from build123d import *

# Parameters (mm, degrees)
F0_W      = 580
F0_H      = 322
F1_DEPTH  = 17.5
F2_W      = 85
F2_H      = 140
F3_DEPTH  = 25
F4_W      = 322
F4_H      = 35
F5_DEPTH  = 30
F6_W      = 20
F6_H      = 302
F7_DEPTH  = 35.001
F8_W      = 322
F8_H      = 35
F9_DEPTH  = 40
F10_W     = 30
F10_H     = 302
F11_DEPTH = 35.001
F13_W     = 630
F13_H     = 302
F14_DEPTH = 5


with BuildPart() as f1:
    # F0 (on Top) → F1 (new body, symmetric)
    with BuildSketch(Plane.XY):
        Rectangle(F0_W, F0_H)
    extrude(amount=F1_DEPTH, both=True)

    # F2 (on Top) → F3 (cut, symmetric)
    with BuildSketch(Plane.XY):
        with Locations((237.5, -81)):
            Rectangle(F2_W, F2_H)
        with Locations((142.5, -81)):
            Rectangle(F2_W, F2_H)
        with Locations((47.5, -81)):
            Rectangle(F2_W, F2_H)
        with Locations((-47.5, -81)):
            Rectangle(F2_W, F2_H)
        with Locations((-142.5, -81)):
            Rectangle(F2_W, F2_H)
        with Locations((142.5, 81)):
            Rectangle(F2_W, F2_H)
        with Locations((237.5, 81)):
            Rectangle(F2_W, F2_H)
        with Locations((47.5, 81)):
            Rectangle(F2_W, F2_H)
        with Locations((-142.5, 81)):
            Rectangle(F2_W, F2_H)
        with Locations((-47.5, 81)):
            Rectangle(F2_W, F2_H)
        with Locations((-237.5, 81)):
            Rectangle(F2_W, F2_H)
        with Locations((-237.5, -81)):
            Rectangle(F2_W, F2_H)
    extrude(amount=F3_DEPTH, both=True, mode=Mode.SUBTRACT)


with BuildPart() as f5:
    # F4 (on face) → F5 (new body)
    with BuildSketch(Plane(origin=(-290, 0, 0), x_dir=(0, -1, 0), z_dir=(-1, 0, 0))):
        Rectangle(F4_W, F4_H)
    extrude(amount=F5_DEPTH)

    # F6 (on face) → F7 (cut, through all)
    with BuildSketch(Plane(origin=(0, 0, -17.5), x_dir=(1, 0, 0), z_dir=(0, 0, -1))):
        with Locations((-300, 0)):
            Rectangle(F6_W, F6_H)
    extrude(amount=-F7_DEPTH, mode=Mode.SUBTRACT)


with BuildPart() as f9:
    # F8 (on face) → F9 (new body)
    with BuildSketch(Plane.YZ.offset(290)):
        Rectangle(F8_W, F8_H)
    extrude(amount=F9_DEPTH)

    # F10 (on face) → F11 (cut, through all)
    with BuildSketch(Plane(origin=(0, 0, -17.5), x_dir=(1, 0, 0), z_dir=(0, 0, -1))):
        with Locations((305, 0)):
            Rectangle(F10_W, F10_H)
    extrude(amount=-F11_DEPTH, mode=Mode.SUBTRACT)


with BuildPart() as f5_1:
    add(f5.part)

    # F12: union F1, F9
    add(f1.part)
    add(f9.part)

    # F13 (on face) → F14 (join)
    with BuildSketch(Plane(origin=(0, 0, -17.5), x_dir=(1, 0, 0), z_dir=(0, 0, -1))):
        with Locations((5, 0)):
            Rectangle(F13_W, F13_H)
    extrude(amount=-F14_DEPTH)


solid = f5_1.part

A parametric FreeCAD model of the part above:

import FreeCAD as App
import Part
import Sketcher

V = App.Vector
Q = App.Units.Quantity

doc = App.newDocument("Part")
params = doc.addObject("Spreadsheet::Sheet", "Params")
for row, (alias, value) in enumerate([
    ("sketch1_width", "580 mm"),
    ("sketch1_height", "322 mm"),
    ("pad1_length", "35 mm"),
    ("sketch2_width", "85 mm"),
    ("sketch2_height", "140 mm"),
    ("pocket1_length", "50 mm"),
    ("sketch3_width", "322 mm"),
    ("sketch3_height", "35 mm"),
    ("pad2_length", "30 mm"),
    ("sketch4_width", "20 mm"),
    ("sketch4_height", "302 mm"),
    ("sketch5_width", "322 mm"),
    ("sketch5_height", "35 mm"),
    ("pad3_length", "40 mm"),
    ("sketch6_width", "30 mm"),
    ("sketch6_height", "302 mm"),
    ("sketch7_width", "630 mm"),
    ("sketch7_height", "302 mm"),
    ("pad4_length", "5 mm"),
], start=1):
    params.set(f"A{row}", alias)
    params.set(f"B{row}", "=" + value)
    params.setAlias(f"B{row}", alias)

body = doc.addObject("PartDesign::Body", "Body")

# Sketch on XY plane
sketch1 = body.newObject("Sketcher::SketchObject", "Sketch")
sketch1.AttachmentSupport = (doc.getObject("XY_Plane"), [""])
sketch1.MapMode = "FlatFace"
sketch1.addGeometry(Part.LineSegment(V(-290, 161, 0), V(-290, -161, 0)), False)
sketch1.addGeometry(Part.LineSegment(V(-290, -161, 0), V(290, -161, 0)), False)
sketch1.addGeometry(Part.LineSegment(V(290, -161, 0), V(290, 161, 0)), False)
sketch1.addGeometry(Part.LineSegment(V(290, 161, 0), V(-290, 161, 0)), False)
sketch1.addConstraint(Sketcher.Constraint("Coincident", 0, 2, 1, 1))
sketch1.addConstraint(Sketcher.Constraint("Coincident", 1, 2, 2, 1))
sketch1.addConstraint(Sketcher.Constraint("Coincident", 2, 2, 3, 1))
sketch1.addConstraint(Sketcher.Constraint("Coincident", 3, 2, 0, 1))
sketch1.addConstraint(Sketcher.Constraint("Vertical", 0))
sketch1.addConstraint(Sketcher.Constraint("Horizontal", 1))
sketch1.addConstraint(Sketcher.Constraint("Vertical", 2))
sketch1.addConstraint(Sketcher.Constraint("Horizontal", 3))
sketch1.addConstraint(Sketcher.Constraint("Symmetric", 0, 2, 2, 2, -1, 1))
sketch1.addConstraint(Sketcher.Constraint("DistanceX", 1, 1, 1, 2, Q("580 mm")))
sketch1.addConstraint(Sketcher.Constraint("DistanceY", 0, 2, 0, 1, Q("322 mm")))
sketch1.setExpression("Constraints[9]", "Params.sketch1_width")
sketch1.setExpression("Constraints[10]", "Params.sketch1_height")
pad1 = body.newObject("PartDesign::Pad", "Pad")
pad1.Profile = sketch1
pad1.setExpression("Length", "Params.pad1_length")
pad1.Midplane = True

# Sketch on XY plane
sketch2 = body.newObject("Sketcher::SketchObject", "Sketch001")
sketch2.AttachmentSupport = (doc.getObject("XY_Plane"), [""])
sketch2.MapMode = "FlatFace"
sketch2.addGeometry(Part.LineSegment(V(195, -11, 0), V(195, -151, 0)), False)
sketch2.addGeometry(Part.LineSegment(V(195, -151, 0), V(280, -151, 0)), False)
sketch2.addGeometry(Part.LineSegment(V(280, -151, 0), V(280, -11, 0)), False)
sketch2.addGeometry(Part.LineSegment(V(280, -11, 0), V(195, -11, 0)), False)
sketch2.addGeometry(Part.LineSegment(V(100, -11, 0), V(100, -151, 0)), False)
sketch2.addGeometry(Part.LineSegment(V(100, -151, 0), V(185, -151, 0)), False)
sketch2.addGeometry(Part.LineSegment(V(185, -151, 0), V(185, -11, 0)), False)
sketch2.addGeometry(Part.LineSegment(V(185, -11, 0), V(100, -11, 0)), False)
sketch2.addGeometry(Part.LineSegment(V(5, -11, 0), V(5, -151, 0)), False)
sketch2.addGeometry(Part.LineSegment(V(5, -151, 0), V(90, -151, 0)), False)
sketch2.addGeometry(Part.LineSegment(V(90, -151, 0), V(90, -11, 0)), False)
sketch2.addGeometry(Part.LineSegment(V(90, -11, 0), V(5, -11, 0)), False)
sketch2.addGeometry(Part.LineSegment(V(-90, -11, 0), V(-90, -151, 0)), False)
sketch2.addGeometry(Part.LineSegment(V(-90, -151, 0), V(-5, -151, 0)), False)
sketch2.addGeometry(Part.LineSegment(V(-5, -151, 0), V(-5, -11, 0)), False)
sketch2.addGeometry(Part.LineSegment(V(-5, -11, 0), V(-90, -11, 0)), False)
sketch2.addGeometry(Part.LineSegment(V(-185, -11, 0), V(-185, -151, 0)), False)
sketch2.addGeometry(Part.LineSegment(V(-185, -151, 0), V(-100, -151, 0)), False)
sketch2.addGeometry(Part.LineSegment(V(-100, -151, 0), V(-100, -11, 0)), False)
sketch2.addGeometry(Part.LineSegment(V(-100, -11, 0), V(-185, -11, 0)), False)
sketch2.addGeometry(Part.LineSegment(V(100, 151, 0), V(100, 11, 0)), False)
sketch2.addGeometry(Part.LineSegment(V(100, 11, 0), V(185, 11, 0)), False)
sketch2.addGeometry(Part.LineSegment(V(185, 11, 0), V(185, 151, 0)), False)
sketch2.addGeometry(Part.LineSegment(V(185, 151, 0), V(100, 151, 0)), False)
sketch2.addGeometry(Part.LineSegment(V(195, 151, 0), V(195, 11, 0)), False)
sketch2.addGeometry(Part.LineSegment(V(195, 11, 0), V(280, 11, 0)), False)
sketch2.addGeometry(Part.LineSegment(V(280, 11, 0), V(280, 151, 0)), False)
sketch2.addGeometry(Part.LineSegment(V(280, 151, 0), V(195, 151, 0)), False)
sketch2.addGeometry(Part.LineSegment(V(5, 151, 0), V(5, 11, 0)), False)
sketch2.addGeometry(Part.LineSegment(V(5, 11, 0), V(90, 11, 0)), False)
sketch2.addGeometry(Part.LineSegment(V(90, 11, 0), V(90, 151, 0)), False)
sketch2.addGeometry(Part.LineSegment(V(90, 151, 0), V(5, 151, 0)), False)
sketch2.addGeometry(Part.LineSegment(V(-185, 151, 0), V(-185, 11, 0)), False)
sketch2.addGeometry(Part.LineSegment(V(-185, 11, 0), V(-100, 11, 0)), False)
sketch2.addGeometry(Part.LineSegment(V(-100, 11, 0), V(-100, 151, 0)), False)
sketch2.addGeometry(Part.LineSegment(V(-100, 151, 0), V(-185, 151, 0)), False)
sketch2.addGeometry(Part.LineSegment(V(-90, 151, 0), V(-90, 11, 0)), False)
sketch2.addGeometry(Part.LineSegment(V(-90, 11, 0), V(-5, 11, 0)), False)
sketch2.addGeometry(Part.LineSegment(V(-5, 11, 0), V(-5, 151, 0)), False)
sketch2.addGeometry(Part.LineSegment(V(-5, 151, 0), V(-90, 151, 0)), False)
sketch2.addGeometry(Part.LineSegment(V(-280, 151, 0), V(-280, 11, 0)), False)
sketch2.addGeometry(Part.LineSegment(V(-280, 11, 0), V(-195, 11, 0)), False)
sketch2.addGeometry(Part.LineSegment(V(-195, 11, 0), V(-195, 151, 0)), False)
sketch2.addGeometry(Part.LineSegment(V(-195, 151, 0), V(-280, 151, 0)), False)
sketch2.addGeometry(Part.LineSegment(V(-280, -11, 0), V(-280, -151, 0)), False)
sketch2.addGeometry(Part.LineSegment(V(-280, -151, 0), V(-195, -151, 0)), False)
sketch2.addGeometry(Part.LineSegment(V(-195, -151, 0), V(-195, -11, 0)), False)
sketch2.addGeometry(Part.LineSegment(V(-195, -11, 0), V(-280, -11, 0)), False)
sketch2.addConstraint(Sketcher.Constraint("Coincident", 0, 2, 1, 1))
sketch2.addConstraint(Sketcher.Constraint("Coincident", 1, 2, 2, 1))
sketch2.addConstraint(Sketcher.Constraint("Coincident", 2, 2, 3, 1))
sketch2.addConstraint(Sketcher.Constraint("Coincident", 3, 2, 0, 1))
sketch2.addConstraint(Sketcher.Constraint("Coincident", 4, 2, 5, 1))
sketch2.addConstraint(Sketcher.Constraint("Coincident", 5, 2, 6, 1))
sketch2.addConstraint(Sketcher.Constraint("Coincident", 6, 2, 7, 1))
sketch2.addConstraint(Sketcher.Constraint("Coincident", 7, 2, 4, 1))
sketch2.addConstraint(Sketcher.Constraint("Coincident", 8, 2, 9, 1))
sketch2.addConstraint(Sketcher.Constraint("Coincident", 9, 2, 10, 1))
sketch2.addConstraint(Sketcher.Constraint("Coincident", 10, 2, 11, 1))
sketch2.addConstraint(Sketcher.Constraint("Coincident", 11, 2, 8, 1))
sketch2.addConstraint(Sketcher.Constraint("Coincident", 12, 2, 13, 1))
sketch2.addConstraint(Sketcher.Constraint("Coincident", 13, 2, 14, 1))
sketch2.addConstraint(Sketcher.Constraint("Coincident", 14, 2, 15, 1))
sketch2.addConstraint(Sketcher.Constraint("Coincident", 15, 2, 12, 1))
sketch2.addConstraint(Sketcher.Constraint("Coincident", 16, 2, 17, 1))
sketch2.addConstraint(Sketcher.Constraint("Coincident", 17, 2, 18, 1))
sketch2.addConstraint(Sketcher.Constraint("Coincident", 18, 2, 19, 1))
sketch2.addConstraint(Sketcher.Constraint("Coincident", 19, 2, 16, 1))
sketch2.addConstraint(Sketcher.Constraint("Coincident", 20, 2, 21, 1))
sketch2.addConstraint(Sketcher.Constraint("Coincident", 21, 2, 22, 1))
sketch2.addConstraint(Sketcher.Constraint("Coincident", 22, 2, 23, 1))
sketch2.addConstraint(Sketcher.Constraint("Coincident", 23, 2, 20, 1))
sketch2.addConstraint(Sketcher.Constraint("Coincident", 24, 2, 25, 1))
sketch2.addConstraint(Sketcher.Constraint("Coincident", 25, 2, 26, 1))
sketch2.addConstraint(Sketcher.Constraint("Coincident", 26, 2, 27, 1))
sketch2.addConstraint(Sketcher.Constraint("Coincident", 27, 2, 24, 1))
sketch2.addConstraint(Sketcher.Constraint("Coincident", 28, 2, 29, 1))
sketch2.addConstraint(Sketcher.Constraint("Coincident", 29, 2, 30, 1))
sketch2.addConstraint(Sketcher.Constraint("Coincident", 30, 2, 31, 1))
sketch2.addConstraint(Sketcher.Constraint("Coincident", 31, 2, 28, 1))
sketch2.addConstraint(Sketcher.Constraint("Coincident", 32, 2, 33, 1))
sketch2.addConstraint(Sketcher.Constraint("Coincident", 33, 2, 34, 1))
sketch2.addConstraint(Sketcher.Constraint("Coincident", 34, 2, 35, 1))
sketch2.addConstraint(Sketcher.Constraint("Coincident", 35, 2, 32, 1))
sketch2.addConstraint(Sketcher.Constraint("Coincident", 36, 2, 37, 1))
sketch2.addConstraint(Sketcher.Constraint("Coincident", 37, 2, 38, 1))
sketch2.addConstraint(Sketcher.Constraint("Coincident", 38, 2, 39, 1))
sketch2.addConstraint(Sketcher.Constraint("Coincident", 39, 2, 36, 1))
sketch2.addConstraint(Sketcher.Constraint("Coincident", 40, 2, 41, 1))
sketch2.addConstraint(Sketcher.Constraint("Coincident", 41, 2, 42, 1))
sketch2.addConstraint(Sketcher.Constraint("Coincident", 42, 2, 43, 1))
sketch2.addConstraint(Sketcher.Constraint("Coincident", 43, 2, 40, 1))
sketch2.addConstraint(Sketcher.Constraint("Coincident", 44, 2, 45, 1))
sketch2.addConstraint(Sketcher.Constraint("Coincident", 45, 2, 46, 1))
sketch2.addConstraint(Sketcher.Constraint("Coincident", 46, 2, 47, 1))
sketch2.addConstraint(Sketcher.Constraint("Coincident", 47, 2, 44, 1))
sketch2.addConstraint(Sketcher.Constraint("Vertical", 0))
sketch2.addConstraint(Sketcher.Constraint("Horizontal", 1))
sketch2.addConstraint(Sketcher.Constraint("Vertical", 2))
sketch2.addConstraint(Sketcher.Constraint("Horizontal", 3))
sketch2.addConstraint(Sketcher.Constraint("Vertical", 4))
sketch2.addConstraint(Sketcher.Constraint("Horizontal", 5))
sketch2.addConstraint(Sketcher.Constraint("Vertical", 6))
sketch2.addConstraint(Sketcher.Constraint("Horizontal", 7))
sketch2.addConstraint(Sketcher.Constraint("Vertical", 8))
sketch2.addConstraint(Sketcher.Constraint("Horizontal", 9))
sketch2.addConstraint(Sketcher.Constraint("Vertical", 10))
sketch2.addConstraint(Sketcher.Constraint("Horizontal", 11))
sketch2.addConstraint(Sketcher.Constraint("Vertical", 12))
sketch2.addConstraint(Sketcher.Constraint("Horizontal", 13))
sketch2.addConstraint(Sketcher.Constraint("Vertical", 14))
sketch2.addConstraint(Sketcher.Constraint("Horizontal", 15))
sketch2.addConstraint(Sketcher.Constraint("Vertical", 16))
sketch2.addConstraint(Sketcher.Constraint("Horizontal", 17))
sketch2.addConstraint(Sketcher.Constraint("Vertical", 18))
sketch2.addConstraint(Sketcher.Constraint("Horizontal", 19))
sketch2.addConstraint(Sketcher.Constraint("Vertical", 20))
sketch2.addConstraint(Sketcher.Constraint("Horizontal", 21))
sketch2.addConstraint(Sketcher.Constraint("Vertical", 22))
sketch2.addConstraint(Sketcher.Constraint("Horizontal", 23))
sketch2.addConstraint(Sketcher.Constraint("Vertical", 24))
sketch2.addConstraint(Sketcher.Constraint("Horizontal", 25))
sketch2.addConstraint(Sketcher.Constraint("Vertical", 26))
sketch2.addConstraint(Sketcher.Constraint("Horizontal", 27))
sketch2.addConstraint(Sketcher.Constraint("Vertical", 28))
sketch2.addConstraint(Sketcher.Constraint("Horizontal", 29))
sketch2.addConstraint(Sketcher.Constraint("Vertical", 30))
sketch2.addConstraint(Sketcher.Constraint("Horizontal", 31))
sketch2.addConstraint(Sketcher.Constraint("Vertical", 32))
sketch2.addConstraint(Sketcher.Constraint("Horizontal", 33))
sketch2.addConstraint(Sketcher.Constraint("Vertical", 34))
sketch2.addConstraint(Sketcher.Constraint("Horizontal", 35))
sketch2.addConstraint(Sketcher.Constraint("Vertical", 36))
sketch2.addConstraint(Sketcher.Constraint("Horizontal", 37))
sketch2.addConstraint(Sketcher.Constraint("Vertical", 38))
sketch2.addConstraint(Sketcher.Constraint("Horizontal", 39))
sketch2.addConstraint(Sketcher.Constraint("Vertical", 40))
sketch2.addConstraint(Sketcher.Constraint("Horizontal", 41))
sketch2.addConstraint(Sketcher.Constraint("Vertical", 42))
sketch2.addConstraint(Sketcher.Constraint("Horizontal", 43))
sketch2.addConstraint(Sketcher.Constraint("Vertical", 44))
sketch2.addConstraint(Sketcher.Constraint("Horizontal", 45))
sketch2.addConstraint(Sketcher.Constraint("Vertical", 46))
sketch2.addConstraint(Sketcher.Constraint("Horizontal", 47))
sketch2.addConstraint(Sketcher.Constraint("Symmetric", 18, 2, 20, 2, -1, 1))
sketch2.addConstraint(Sketcher.Constraint("Symmetric", 16, 2, 22, 2, -1, 1))
sketch2.addConstraint(Sketcher.Constraint("Symmetric", 14, 2, 28, 2, -1, 1))
sketch2.addConstraint(Sketcher.Constraint("Symmetric", 12, 2, 30, 2, -1, 1))
sketch2.addConstraint(Sketcher.Constraint("Symmetric", 6, 2, 32, 2, -1, 1))
sketch2.addConstraint(Sketcher.Constraint("Symmetric", 4, 2, 34, 2, -1, 1))
sketch2.addConstraint(Sketcher.Constraint("Symmetric", 10, 2, 36, 2, -1, 1))
sketch2.addConstraint(Sketcher.Constraint("Symmetric", 8, 2, 38, 2, -1, 1))
sketch2.addConstraint(Sketcher.Constraint("Symmetric", 2, 2, 40, 2, -1, 1))
sketch2.addConstraint(Sketcher.Constraint("Symmetric", 0, 2, 42, 2, -1, 1))
sketch2.addConstraint(Sketcher.Constraint("Symmetric", 26, 2, 44, 2, -1, 1))
sketch2.addConstraint(Sketcher.Constraint("Symmetric", 24, 2, 46, 2, -1, 1))
sketch2.addConstraint(Sketcher.Constraint("Symmetric", 9, 2, 12, 2, -2))
sketch2.addConstraint(Sketcher.Constraint("Symmetric", 11, 2, 14, 2, -2))
sketch2.addConstraint(Sketcher.Constraint("Symmetric", 5, 2, 16, 2, -2))
sketch2.addConstraint(Sketcher.Constraint("Symmetric", 7, 2, 18, 2, -2))
sketch2.addConstraint(Sketcher.Constraint("Symmetric", 25, 2, 40, 2, -2))
sketch2.addConstraint(Sketcher.Constraint("Symmetric", 27, 2, 42, 2, -2))
sketch2.addConstraint(Sketcher.Constraint("Horizontal", 1, 2, 4, 2))
sketch2.addConstraint(Sketcher.Constraint("Horizontal", 3, 2, 6, 2))
sketch2.addConstraint(Sketcher.Constraint("Horizontal", 5, 2, 8, 2))
sketch2.addConstraint(Sketcher.Constraint("Horizontal", 7, 2, 10, 2))
sketch2.addConstraint(Sketcher.Constraint("Equal", 3, 5))
sketch2.addConstraint(Sketcher.Constraint("Equal", 7, 9))
sketch2.addConstraint(Sketcher.Constraint("DistanceX", 1, 1, 1, 2, Q("85 mm")))
sketch2.addConstraint(Sketcher.Constraint("DistanceY", 0, 2, 0, 1, Q("140 mm")))
sketch2.addConstraint(Sketcher.Constraint("DistanceX", -1, 1, 0, 2, Q("195 mm")))
sketch2.addConstraint(Sketcher.Constraint("DistanceY", 0, 2, -1, 1, Q("151 mm")))
sketch2.addConstraint(Sketcher.Constraint("DistanceX", -1, 1, 4, 2, Q("100 mm")))
sketch2.addConstraint(Sketcher.Constraint("DistanceX", -1, 1, 8, 2, Q("5 mm")))
sketch2.setExpression("Constraints[120]", "Params.sketch2_width")
sketch2.setExpression("Constraints[121]", "Params.sketch2_height")
pocket1 = body.newObject("PartDesign::Pocket", "Pocket")
pocket1.Profile = sketch2
pocket1.setExpression("Length", "Params.pocket1_length")
pocket1.Midplane = True
body2 = doc.addObject("PartDesign::Body", "Body001")

# Sketch on YZ plane
sketch3 = body2.newObject("Sketcher::SketchObject", "Sketch002")
sketch3.AttachmentSupport = (doc.getObject("YZ_Plane001"), [""])
sketch3.MapMode = "FlatFace"
sketch3.AttachmentOffset = App.Placement(V(0, 0, -290), App.Rotation())
sketch3.addGeometry(Part.LineSegment(V(161, 18, 0), V(161, -18, 0)), False)
sketch3.addGeometry(Part.LineSegment(V(161, -18, 0), V(-161, -18, 0)), False)
sketch3.addGeometry(Part.LineSegment(V(-161, -18, 0), V(-161, 18, 0)), False)
sketch3.addGeometry(Part.LineSegment(V(-161, 18, 0), V(161, 18, 0)), False)
sketch3.addConstraint(Sketcher.Constraint("Coincident", 0, 2, 1, 1))
sketch3.addConstraint(Sketcher.Constraint("Coincident", 1, 2, 2, 1))
sketch3.addConstraint(Sketcher.Constraint("Coincident", 2, 2, 3, 1))
sketch3.addConstraint(Sketcher.Constraint("Coincident", 3, 2, 0, 1))
sketch3.addConstraint(Sketcher.Constraint("Vertical", 0))
sketch3.addConstraint(Sketcher.Constraint("Horizontal", 1))
sketch3.addConstraint(Sketcher.Constraint("Vertical", 2))
sketch3.addConstraint(Sketcher.Constraint("Horizontal", 3))
sketch3.addConstraint(Sketcher.Constraint("Symmetric", 0, 2, 2, 2, -1, 1))
sketch3.addConstraint(Sketcher.Constraint("DistanceX", 1, 2, 1, 1, Q("322 mm")))
sketch3.addConstraint(Sketcher.Constraint("DistanceY", 0, 2, 0, 1, Q("35 mm")))
sketch3.setExpression("Constraints[9]", "Params.sketch3_width")
sketch3.setExpression("Constraints[10]", "Params.sketch3_height")
pad2 = body2.newObject("PartDesign::Pad", "Pad001")
pad2.Profile = sketch3
pad2.setExpression("Length", "Params.pad2_length")
pad2.Reversed = True

# Sketch on XY plane
sketch4 = body2.newObject("Sketcher::SketchObject", "Sketch003")
sketch4.AttachmentSupport = (doc.getObject("XY_Plane001"), [""])
sketch4.MapMode = "FlatFace"
sketch4.AttachmentOffset = App.Placement(V(0, 0, -17.5), App.Rotation())
sketch4.addGeometry(Part.LineSegment(V(-310, -151, 0), V(-310, 151, 0)), False)
sketch4.addGeometry(Part.LineSegment(V(-310, 151, 0), V(-290, 151, 0)), False)
sketch4.addGeometry(Part.LineSegment(V(-290, 151, 0), V(-290, -151, 0)), False)
sketch4.addGeometry(Part.LineSegment(V(-290, -151, 0), V(-310, -151, 0)), False)
sketch4.addConstraint(Sketcher.Constraint("Coincident", 0, 2, 1, 1))
sketch4.addConstraint(Sketcher.Constraint("Coincident", 1, 2, 2, 1))
sketch4.addConstraint(Sketcher.Constraint("Coincident", 2, 2, 3, 1))
sketch4.addConstraint(Sketcher.Constraint("Coincident", 3, 2, 0, 1))
sketch4.addConstraint(Sketcher.Constraint("Vertical", 0))
sketch4.addConstraint(Sketcher.Constraint("Horizontal", 1))
sketch4.addConstraint(Sketcher.Constraint("Vertical", 2))
sketch4.addConstraint(Sketcher.Constraint("Horizontal", 3))
sketch4.addConstraint(Sketcher.Constraint("DistanceX", 1, 1, 1, 2, Q("20 mm")))
sketch4.addConstraint(Sketcher.Constraint("DistanceY", 0, 1, 0, 2, Q("302 mm")))
sketch4.addConstraint(Sketcher.Constraint("DistanceX", 0, 2, -1, 1, Q("310 mm")))
sketch4.addConstraint(Sketcher.Constraint("DistanceY", -1, 1, 0, 2, Q("151 mm")))
sketch4.setExpression("Constraints[8]", "Params.sketch4_width")
sketch4.setExpression("Constraints[9]", "Params.sketch4_height")
pocket2 = body2.newObject("PartDesign::Pocket", "Pocket001")
pocket2.Profile = sketch4
pocket2.Type = "ThroughAll"
pocket2.Reversed = True
body3 = doc.addObject("PartDesign::Body", "Body002")

# Sketch on YZ plane
sketch5 = body3.newObject("Sketcher::SketchObject", "Sketch004")
sketch5.AttachmentSupport = (doc.getObject("YZ_Plane002"), [""])
sketch5.MapMode = "FlatFace"
sketch5.AttachmentOffset = App.Placement(V(0, 0, 290), App.Rotation())
sketch5.addGeometry(Part.LineSegment(V(-161, 18, 0), V(-161, -18, 0)), False)
sketch5.addGeometry(Part.LineSegment(V(-161, -18, 0), V(161, -18, 0)), False)
sketch5.addGeometry(Part.LineSegment(V(161, -18, 0), V(161, 18, 0)), False)
sketch5.addGeometry(Part.LineSegment(V(161, 18, 0), V(-161, 18, 0)), False)
sketch5.addConstraint(Sketcher.Constraint("Coincident", 0, 2, 1, 1))
sketch5.addConstraint(Sketcher.Constraint("Coincident", 1, 2, 2, 1))
sketch5.addConstraint(Sketcher.Constraint("Coincident", 2, 2, 3, 1))
sketch5.addConstraint(Sketcher.Constraint("Coincident", 3, 2, 0, 1))
sketch5.addConstraint(Sketcher.Constraint("Vertical", 0))
sketch5.addConstraint(Sketcher.Constraint("Horizontal", 1))
sketch5.addConstraint(Sketcher.Constraint("Vertical", 2))
sketch5.addConstraint(Sketcher.Constraint("Horizontal", 3))
sketch5.addConstraint(Sketcher.Constraint("Symmetric", 0, 2, 2, 2, -1, 1))
sketch5.addConstraint(Sketcher.Constraint("DistanceX", 1, 1, 1, 2, Q("322 mm")))
sketch5.addConstraint(Sketcher.Constraint("DistanceY", 0, 2, 0, 1, Q("35 mm")))
sketch5.setExpression("Constraints[9]", "Params.sketch5_width")
sketch5.setExpression("Constraints[10]", "Params.sketch5_height")
pad3 = body3.newObject("PartDesign::Pad", "Pad002")
pad3.Profile = sketch5
pad3.setExpression("Length", "Params.pad3_length")

# Sketch on XY plane
sketch6 = body3.newObject("Sketcher::SketchObject", "Sketch005")
sketch6.AttachmentSupport = (doc.getObject("XY_Plane002"), [""])
sketch6.MapMode = "FlatFace"
sketch6.AttachmentOffset = App.Placement(V(0, 0, -17.5), App.Rotation())
sketch6.addGeometry(Part.LineSegment(V(290, -151, 0), V(290, 151, 0)), False)
sketch6.addGeometry(Part.LineSegment(V(290, 151, 0), V(320, 151, 0)), False)
sketch6.addGeometry(Part.LineSegment(V(320, 151, 0), V(320, -151, 0)), False)
sketch6.addGeometry(Part.LineSegment(V(320, -151, 0), V(290, -151, 0)), False)
sketch6.addConstraint(Sketcher.Constraint("Coincident", 0, 2, 1, 1))
sketch6.addConstraint(Sketcher.Constraint("Coincident", 1, 2, 2, 1))
sketch6.addConstraint(Sketcher.Constraint("Coincident", 2, 2, 3, 1))
sketch6.addConstraint(Sketcher.Constraint("Coincident", 3, 2, 0, 1))
sketch6.addConstraint(Sketcher.Constraint("Vertical", 0))
sketch6.addConstraint(Sketcher.Constraint("Horizontal", 1))
sketch6.addConstraint(Sketcher.Constraint("Vertical", 2))
sketch6.addConstraint(Sketcher.Constraint("Horizontal", 3))
sketch6.addConstraint(Sketcher.Constraint("DistanceX", 1, 1, 1, 2, Q("30 mm")))
sketch6.addConstraint(Sketcher.Constraint("DistanceY", 0, 1, 0, 2, Q("302 mm")))
sketch6.addConstraint(Sketcher.Constraint("DistanceX", -1, 1, 0, 2, Q("290 mm")))
sketch6.addConstraint(Sketcher.Constraint("DistanceY", -1, 1, 0, 2, Q("151 mm")))
sketch6.setExpression("Constraints[8]", "Params.sketch6_width")
sketch6.setExpression("Constraints[9]", "Params.sketch6_height")
pocket3 = body3.newObject("PartDesign::Pocket", "Pocket002")
pocket3.Profile = sketch6
pocket3.Type = "ThroughAll"
pocket3.Reversed = True
doc.recompute()

boolean = body2.newObject("PartDesign::Boolean", "Boolean")
boolean.Type = "Fuse"
boolean.addObjects([body])
doc.recompute()

boolean2 = body2.newObject("PartDesign::Boolean", "Boolean001")
boolean2.Type = "Fuse"
boolean2.addObjects([body3])

# Sketch on XY plane
sketch7 = body2.newObject("Sketcher::SketchObject", "Sketch006")
sketch7.AttachmentSupport = (doc.getObject("XY_Plane001"), [""])
sketch7.MapMode = "FlatFace"
sketch7.AttachmentOffset = App.Placement(V(0, 0, -17.5), App.Rotation())
sketch7.addGeometry(Part.LineSegment(V(-310, -151, 0), V(-310, 151, 0)), False)
sketch7.addGeometry(Part.LineSegment(V(-310, 151, 0), V(320, 151, 0)), False)
sketch7.addGeometry(Part.LineSegment(V(320, 151, 0), V(320, -151, 0)), False)
sketch7.addGeometry(Part.LineSegment(V(320, -151, 0), V(-310, -151, 0)), False)
sketch7.addConstraint(Sketcher.Constraint("Coincident", 0, 2, 1, 1))
sketch7.addConstraint(Sketcher.Constraint("Coincident", 1, 2, 2, 1))
sketch7.addConstraint(Sketcher.Constraint("Coincident", 2, 2, 3, 1))
sketch7.addConstraint(Sketcher.Constraint("Coincident", 3, 2, 0, 1))
sketch7.addConstraint(Sketcher.Constraint("Vertical", 0))
sketch7.addConstraint(Sketcher.Constraint("Horizontal", 1))
sketch7.addConstraint(Sketcher.Constraint("Vertical", 2))
sketch7.addConstraint(Sketcher.Constraint("Horizontal", 3))
sketch7.addConstraint(Sketcher.Constraint("DistanceX", 1, 1, 1, 2, Q("630 mm")))
sketch7.addConstraint(Sketcher.Constraint("DistanceY", 0, 1, 0, 2, Q("302 mm")))
sketch7.addConstraint(Sketcher.Constraint("DistanceX", 0, 2, -1, 1, Q("310 mm")))
sketch7.addConstraint(Sketcher.Constraint("DistanceY", -1, 1, 0, 2, Q("151 mm")))
sketch7.setExpression("Constraints[8]", "Params.sketch7_width")
sketch7.setExpression("Constraints[9]", "Params.sketch7_height")
pad4 = body2.newObject("PartDesign::Pad", "Pad003")
pad4.Profile = sketch7
pad4.setExpression("Length", "Params.pad4_length")

doc.recompute()
